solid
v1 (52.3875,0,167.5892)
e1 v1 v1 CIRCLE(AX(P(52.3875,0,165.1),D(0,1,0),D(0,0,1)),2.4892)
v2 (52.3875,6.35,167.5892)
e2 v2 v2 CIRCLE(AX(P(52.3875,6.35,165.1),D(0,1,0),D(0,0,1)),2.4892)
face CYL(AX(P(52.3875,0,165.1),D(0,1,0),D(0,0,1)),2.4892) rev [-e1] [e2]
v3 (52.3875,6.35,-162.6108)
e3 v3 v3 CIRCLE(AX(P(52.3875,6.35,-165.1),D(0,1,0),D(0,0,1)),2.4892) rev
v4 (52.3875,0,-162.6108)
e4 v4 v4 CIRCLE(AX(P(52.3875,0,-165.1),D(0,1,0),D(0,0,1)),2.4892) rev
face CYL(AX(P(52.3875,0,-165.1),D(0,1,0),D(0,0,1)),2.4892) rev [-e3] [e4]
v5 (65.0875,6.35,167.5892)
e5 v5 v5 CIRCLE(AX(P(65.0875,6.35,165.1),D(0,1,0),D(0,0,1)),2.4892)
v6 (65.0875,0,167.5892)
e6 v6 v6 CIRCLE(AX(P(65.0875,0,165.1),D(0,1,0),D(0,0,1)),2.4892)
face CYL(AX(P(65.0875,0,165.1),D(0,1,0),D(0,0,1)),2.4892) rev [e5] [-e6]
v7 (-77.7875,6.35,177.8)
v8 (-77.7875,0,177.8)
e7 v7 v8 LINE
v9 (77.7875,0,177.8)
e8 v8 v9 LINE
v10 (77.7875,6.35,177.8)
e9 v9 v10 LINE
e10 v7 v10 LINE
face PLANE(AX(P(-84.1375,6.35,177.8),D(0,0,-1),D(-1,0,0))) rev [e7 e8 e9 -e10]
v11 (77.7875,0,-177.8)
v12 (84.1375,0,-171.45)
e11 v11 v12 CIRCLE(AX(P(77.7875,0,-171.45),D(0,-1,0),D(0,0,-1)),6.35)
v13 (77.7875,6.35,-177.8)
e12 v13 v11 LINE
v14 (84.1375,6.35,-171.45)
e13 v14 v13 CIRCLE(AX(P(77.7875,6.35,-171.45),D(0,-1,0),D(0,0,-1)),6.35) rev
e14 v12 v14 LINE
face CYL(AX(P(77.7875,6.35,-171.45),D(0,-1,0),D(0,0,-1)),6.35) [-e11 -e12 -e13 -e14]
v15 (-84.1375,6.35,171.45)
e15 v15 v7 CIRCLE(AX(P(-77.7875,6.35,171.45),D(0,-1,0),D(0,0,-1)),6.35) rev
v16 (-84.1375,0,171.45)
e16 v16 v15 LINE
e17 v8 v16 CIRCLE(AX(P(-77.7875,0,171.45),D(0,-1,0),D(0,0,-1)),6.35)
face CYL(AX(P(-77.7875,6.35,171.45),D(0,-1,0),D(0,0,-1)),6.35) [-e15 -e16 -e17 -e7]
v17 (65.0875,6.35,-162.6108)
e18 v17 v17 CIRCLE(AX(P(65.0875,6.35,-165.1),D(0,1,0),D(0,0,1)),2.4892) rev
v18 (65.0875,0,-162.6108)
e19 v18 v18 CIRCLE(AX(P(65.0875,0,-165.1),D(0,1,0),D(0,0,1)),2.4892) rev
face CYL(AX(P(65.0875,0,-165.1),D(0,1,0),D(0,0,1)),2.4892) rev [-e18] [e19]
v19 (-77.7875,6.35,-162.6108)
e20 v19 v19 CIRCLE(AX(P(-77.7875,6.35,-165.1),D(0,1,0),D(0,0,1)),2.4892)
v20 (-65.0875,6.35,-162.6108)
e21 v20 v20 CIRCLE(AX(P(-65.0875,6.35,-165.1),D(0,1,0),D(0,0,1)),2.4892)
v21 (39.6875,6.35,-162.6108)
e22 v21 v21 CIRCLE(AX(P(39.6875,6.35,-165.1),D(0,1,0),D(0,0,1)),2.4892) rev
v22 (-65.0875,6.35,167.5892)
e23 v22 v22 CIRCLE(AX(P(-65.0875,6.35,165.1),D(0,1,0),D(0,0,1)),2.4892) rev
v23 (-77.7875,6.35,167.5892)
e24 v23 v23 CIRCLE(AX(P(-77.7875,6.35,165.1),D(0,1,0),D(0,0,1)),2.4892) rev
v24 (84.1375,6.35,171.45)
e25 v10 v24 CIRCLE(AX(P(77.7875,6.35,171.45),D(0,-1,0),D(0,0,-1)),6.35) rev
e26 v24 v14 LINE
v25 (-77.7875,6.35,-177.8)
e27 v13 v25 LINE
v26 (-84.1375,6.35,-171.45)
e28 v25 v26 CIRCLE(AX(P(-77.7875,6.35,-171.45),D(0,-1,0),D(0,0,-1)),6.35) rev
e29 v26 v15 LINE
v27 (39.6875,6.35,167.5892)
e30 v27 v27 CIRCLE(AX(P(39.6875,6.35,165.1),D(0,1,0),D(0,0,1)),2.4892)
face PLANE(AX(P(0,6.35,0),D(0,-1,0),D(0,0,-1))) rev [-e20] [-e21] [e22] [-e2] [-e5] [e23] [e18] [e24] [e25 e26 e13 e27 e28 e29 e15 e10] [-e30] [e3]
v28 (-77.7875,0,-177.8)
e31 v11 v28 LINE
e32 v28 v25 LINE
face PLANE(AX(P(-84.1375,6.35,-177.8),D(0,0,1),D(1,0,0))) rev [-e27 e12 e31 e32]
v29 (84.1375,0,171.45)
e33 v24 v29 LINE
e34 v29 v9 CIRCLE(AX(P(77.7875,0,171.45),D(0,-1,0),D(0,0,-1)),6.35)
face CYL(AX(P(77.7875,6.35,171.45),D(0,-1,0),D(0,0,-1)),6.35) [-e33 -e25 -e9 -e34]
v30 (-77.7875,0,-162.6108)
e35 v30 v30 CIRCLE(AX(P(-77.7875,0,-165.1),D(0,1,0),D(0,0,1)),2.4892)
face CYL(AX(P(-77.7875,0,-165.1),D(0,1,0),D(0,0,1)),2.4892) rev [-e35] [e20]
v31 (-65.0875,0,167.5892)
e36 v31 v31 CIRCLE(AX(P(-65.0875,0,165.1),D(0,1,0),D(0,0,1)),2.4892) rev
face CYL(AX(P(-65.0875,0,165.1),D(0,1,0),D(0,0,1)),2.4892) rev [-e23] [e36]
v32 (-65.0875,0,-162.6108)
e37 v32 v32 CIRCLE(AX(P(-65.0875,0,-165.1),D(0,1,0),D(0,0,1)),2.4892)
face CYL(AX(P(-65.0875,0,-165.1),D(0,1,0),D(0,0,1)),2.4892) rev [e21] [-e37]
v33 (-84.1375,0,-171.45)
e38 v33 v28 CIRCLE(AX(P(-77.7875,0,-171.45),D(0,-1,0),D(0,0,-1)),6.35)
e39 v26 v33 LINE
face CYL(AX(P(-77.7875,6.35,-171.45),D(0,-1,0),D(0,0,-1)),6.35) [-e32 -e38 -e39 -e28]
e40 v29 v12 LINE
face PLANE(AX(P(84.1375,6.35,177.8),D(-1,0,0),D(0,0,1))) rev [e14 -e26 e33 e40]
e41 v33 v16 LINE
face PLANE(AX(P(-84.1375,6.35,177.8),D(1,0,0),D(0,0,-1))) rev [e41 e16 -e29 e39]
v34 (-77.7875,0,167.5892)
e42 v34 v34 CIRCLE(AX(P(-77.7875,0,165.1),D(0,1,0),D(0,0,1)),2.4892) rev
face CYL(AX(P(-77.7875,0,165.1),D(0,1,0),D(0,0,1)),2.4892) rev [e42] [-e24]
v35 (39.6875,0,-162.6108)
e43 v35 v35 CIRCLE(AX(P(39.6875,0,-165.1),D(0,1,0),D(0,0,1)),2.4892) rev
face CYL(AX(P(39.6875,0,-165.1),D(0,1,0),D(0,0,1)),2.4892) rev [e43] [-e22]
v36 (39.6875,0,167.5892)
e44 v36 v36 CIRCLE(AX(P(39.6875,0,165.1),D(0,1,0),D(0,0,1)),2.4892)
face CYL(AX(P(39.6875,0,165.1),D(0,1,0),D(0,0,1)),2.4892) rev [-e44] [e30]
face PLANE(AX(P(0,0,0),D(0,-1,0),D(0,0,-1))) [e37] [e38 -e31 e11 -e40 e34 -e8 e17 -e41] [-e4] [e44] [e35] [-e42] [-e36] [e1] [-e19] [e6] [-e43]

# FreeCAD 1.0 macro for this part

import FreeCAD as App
import Part
import Sketcher
from FreeCAD import Vector
Q = App.Units.Quantity


def edges_at(feature, points):
    """Names of the edges that pass closest to the given points."""
    edges = feature.Shape.Edges
    near = lambda p: min(range(len(edges)), key=lambda i: edges[i].distToShape(Part.Vertex(*p))[0])
    return sorted({f"Edge{near(p) + 1}" for p in points})

doc = App.newDocument("Part")
body = doc.addObject("PartDesign::Body", "Body")

sketch1 = doc.addObject("Sketcher::SketchObject", "Sketch")
body.addObject(sketch1)
sketch1.AttachmentSupport = (doc.XZ_Plane, [""])
sketch1.MapMode = "FlatFace"
sketch1.addGeometry(Part.LineSegment(Vector(-84.1375, -177.8, 0), Vector(-84.1375, 177.8, 0)), False)
sketch1.addGeometry(Part.LineSegment(Vector(-84.1375, 177.8, 0), Vector(84.1375, 177.8, 0)), False)
sketch1.addGeometry(Part.LineSegment(Vector(84.1375, 177.8, 0), Vector(84.1375, -177.8, 0)), False)
sketch1.addGeometry(Part.LineSegment(Vector(84.1375, -177.8, 0), Vector(-84.1375, -177.8, 0)), False)
sketch1.addConstraint(Sketcher.Constraint("Coincident", 0, 2, 1, 1))
sketch1.addConstraint(Sketcher.Constraint("Coincident", 1, 2, 2, 1))
sketch1.addConstraint(Sketcher.Constraint("Coincident", 2, 2, 3, 1))
sketch1.addConstraint(Sketcher.Constraint("Coincident", 3, 2, 0, 1))
sketch1.addConstraint(Sketcher.Constraint("Vertical", 0))
sketch1.addConstraint(Sketcher.Constraint("Horizontal", 1))
sketch1.addConstraint(Sketcher.Constraint("Vertical", 2))
sketch1.addConstraint(Sketcher.Constraint("Horizontal", 3))
sketch1.addConstraint(Sketcher.Constraint("Symmetric", 0, 2, 2, 2, -1, 1))
sketch1.addConstraint(Sketcher.Constraint("DistanceY", 0, 1, 0, 2, Q("14 in")))
sketch1.addConstraint(Sketcher.Constraint("DistanceX", 1, 1, 1, 2, Q("6.625 in")))
pad1 = doc.addObject("PartDesign::Pad", "Pad")
body.addObject(pad1)
pad1.Profile = sketch1
pad1.Length = Q("0.25 in")
pad1.Reversed = True

sketch2 = doc.addObject("Sketcher::SketchObject", "Sketch001")
body.addObject(sketch2)
sketch2.AttachmentSupport = (doc.XZ_Plane, [""])
sketch2.MapMode = "FlatFace"
sketch2.AttachmentOffset = App.Placement(Vector(0, 0, -0.25 * 25.4), App.Rotation())
sketch2.addGeometry(Part.Circle(Vector(65.0875, 165.1, 0), Vector(0, 0, 1), 2.4892), False)
sketch2.addGeometry(Part.Circle(Vector(52.3875, 165.1, 0), Vector(0, 0, 1), 2.4892), False)
sketch2.addGeometry(Part.Circle(Vector(39.6875, 165.1, 0), Vector(0, 0, 1), 2.4892), False)
sketch2.addGeometry(Part.Circle(Vector(65.0875, -165.1, 0), Vector(0, 0, 1), 2.4892), False)
sketch2.addGeometry(Part.Circle(Vector(52.3875, -165.1, 0), Vector(0, 0, 1), 2.4892), False)
sketch2.addGeometry(Part.Circle(Vector(39.6875, -165.1, 0), Vector(0, 0, 1), 2.4892), False)
sketch2.addGeometry(Part.Circle(Vector(-77.7875, 165.1, 0), Vector(0, 0, 1), 2.4892), False)
sketch2.addGeometry(Part.Circle(Vector(-65.0875, 165.1, 0), Vector(0, 0, 1), 2.4892), False)
sketch2.addGeometry(Part.Circle(Vector(-77.7875, -165.1, 0), Vector(0, 0, 1), 2.4892), False)
sketch2.addGeometry(Part.Circle(Vector(-65.0875, -165.1, 0), Vector(0, 0, 1), 2.4892), False)
sketch2.addConstraint(Sketcher.Constraint("Equal", 0, 1))
sketch2.addConstraint(Sketcher.Constraint("Equal", 1, 2))
sketch2.addConstraint(Sketcher.Constraint("Equal", 2, 3))
sketch2.addConstraint(Sketcher.Constraint("Equal", 3, 4))
sketch2.addConstraint(Sketcher.Constraint("Equal", 4, 5))
sketch2.addConstraint(Sketcher.Constraint("Equal", 5, 6))
sketch2.addConstraint(Sketcher.Constraint("Equal", 6, 7))
sketch2.addConstraint(Sketcher.Constraint("Equal", 7, 8))
sketch2.addConstraint(Sketcher.Constraint("Equal", 8, 9))
sketch2.addConstraint(Sketcher.Constraint("Symmetric", 3, 3, 7, 3, -1, 1))
sketch2.addConstraint(Sketcher.Constraint("Symmetric", 0, 3, 9, 3, -1, 1))
sketch2.addConstraint(Sketcher.Constraint("Symmetric", 0, 3, 7, 3, -2))
sketch2.addConstraint(Sketcher.Constraint("Symmetric", 1, 3, 4, 3, -1))
sketch2.addConstraint(Sketcher.Constraint("Symmetric", 2, 3, 5, 3, -1))
sketch2.addConstraint(Sketcher.Constraint("Symmetric", 6, 3, 8, 3, -1))
sketch2.addConstraint(Sketcher.Constraint("Horizontal", 0, 3, 1, 3))
sketch2.addConstraint(Sketcher.Constraint("Horizontal", 1, 3, 2, 3))
sketch2.addConstraint(Sketcher.Constraint("Horizontal", 2, 3, 6, 3))
sketch2.addConstraint(Sketcher.Constraint("Diameter", 0, Q("0.196 in")))
sketch2.addConstraint(Sketcher.Constraint("DistanceX", 2, 3, 0, 3, Q("1 in")))
sketch2.addConstraint(Sketcher.Constraint("DistanceY", 3, 3, 0, 3, Q("13 in")))
sketch2.addConstraint(Sketcher.Constraint("DistanceX", 1, 3, 0, 3, Q("0.5 in")))
sketch2.addConstraint(Sketcher.Constraint("DistanceX", 6, 3, 7, 3, Q("0.5 in")))
sketch2.addConstraint(Sketcher.Constraint("DistanceX", -1, 1, 0, 3, Q("2.5625 in")))
pocket1 = doc.addObject("PartDesign::Pocket", "Pocket")
body.addObject(pocket1)
pocket1.Profile = sketch2
pocket1.Type = "ThroughAll"
pocket1.Reversed = True
doc.recompute()

fillet = doc.addObject("PartDesign::Fillet", "Fillet")
body.addObject(fillet)
fillet.Base = (pocket1, edges_at(pocket1, [
    (84.138, 3.175, 177.8),
    (-84.138, 3.175, 177.8),
    (-84.138, 3.175, -177.8),
    (84.138, 3.175, -177.8),
]))
fillet.Radius = Q("0.25 in")

doc.recompute()
